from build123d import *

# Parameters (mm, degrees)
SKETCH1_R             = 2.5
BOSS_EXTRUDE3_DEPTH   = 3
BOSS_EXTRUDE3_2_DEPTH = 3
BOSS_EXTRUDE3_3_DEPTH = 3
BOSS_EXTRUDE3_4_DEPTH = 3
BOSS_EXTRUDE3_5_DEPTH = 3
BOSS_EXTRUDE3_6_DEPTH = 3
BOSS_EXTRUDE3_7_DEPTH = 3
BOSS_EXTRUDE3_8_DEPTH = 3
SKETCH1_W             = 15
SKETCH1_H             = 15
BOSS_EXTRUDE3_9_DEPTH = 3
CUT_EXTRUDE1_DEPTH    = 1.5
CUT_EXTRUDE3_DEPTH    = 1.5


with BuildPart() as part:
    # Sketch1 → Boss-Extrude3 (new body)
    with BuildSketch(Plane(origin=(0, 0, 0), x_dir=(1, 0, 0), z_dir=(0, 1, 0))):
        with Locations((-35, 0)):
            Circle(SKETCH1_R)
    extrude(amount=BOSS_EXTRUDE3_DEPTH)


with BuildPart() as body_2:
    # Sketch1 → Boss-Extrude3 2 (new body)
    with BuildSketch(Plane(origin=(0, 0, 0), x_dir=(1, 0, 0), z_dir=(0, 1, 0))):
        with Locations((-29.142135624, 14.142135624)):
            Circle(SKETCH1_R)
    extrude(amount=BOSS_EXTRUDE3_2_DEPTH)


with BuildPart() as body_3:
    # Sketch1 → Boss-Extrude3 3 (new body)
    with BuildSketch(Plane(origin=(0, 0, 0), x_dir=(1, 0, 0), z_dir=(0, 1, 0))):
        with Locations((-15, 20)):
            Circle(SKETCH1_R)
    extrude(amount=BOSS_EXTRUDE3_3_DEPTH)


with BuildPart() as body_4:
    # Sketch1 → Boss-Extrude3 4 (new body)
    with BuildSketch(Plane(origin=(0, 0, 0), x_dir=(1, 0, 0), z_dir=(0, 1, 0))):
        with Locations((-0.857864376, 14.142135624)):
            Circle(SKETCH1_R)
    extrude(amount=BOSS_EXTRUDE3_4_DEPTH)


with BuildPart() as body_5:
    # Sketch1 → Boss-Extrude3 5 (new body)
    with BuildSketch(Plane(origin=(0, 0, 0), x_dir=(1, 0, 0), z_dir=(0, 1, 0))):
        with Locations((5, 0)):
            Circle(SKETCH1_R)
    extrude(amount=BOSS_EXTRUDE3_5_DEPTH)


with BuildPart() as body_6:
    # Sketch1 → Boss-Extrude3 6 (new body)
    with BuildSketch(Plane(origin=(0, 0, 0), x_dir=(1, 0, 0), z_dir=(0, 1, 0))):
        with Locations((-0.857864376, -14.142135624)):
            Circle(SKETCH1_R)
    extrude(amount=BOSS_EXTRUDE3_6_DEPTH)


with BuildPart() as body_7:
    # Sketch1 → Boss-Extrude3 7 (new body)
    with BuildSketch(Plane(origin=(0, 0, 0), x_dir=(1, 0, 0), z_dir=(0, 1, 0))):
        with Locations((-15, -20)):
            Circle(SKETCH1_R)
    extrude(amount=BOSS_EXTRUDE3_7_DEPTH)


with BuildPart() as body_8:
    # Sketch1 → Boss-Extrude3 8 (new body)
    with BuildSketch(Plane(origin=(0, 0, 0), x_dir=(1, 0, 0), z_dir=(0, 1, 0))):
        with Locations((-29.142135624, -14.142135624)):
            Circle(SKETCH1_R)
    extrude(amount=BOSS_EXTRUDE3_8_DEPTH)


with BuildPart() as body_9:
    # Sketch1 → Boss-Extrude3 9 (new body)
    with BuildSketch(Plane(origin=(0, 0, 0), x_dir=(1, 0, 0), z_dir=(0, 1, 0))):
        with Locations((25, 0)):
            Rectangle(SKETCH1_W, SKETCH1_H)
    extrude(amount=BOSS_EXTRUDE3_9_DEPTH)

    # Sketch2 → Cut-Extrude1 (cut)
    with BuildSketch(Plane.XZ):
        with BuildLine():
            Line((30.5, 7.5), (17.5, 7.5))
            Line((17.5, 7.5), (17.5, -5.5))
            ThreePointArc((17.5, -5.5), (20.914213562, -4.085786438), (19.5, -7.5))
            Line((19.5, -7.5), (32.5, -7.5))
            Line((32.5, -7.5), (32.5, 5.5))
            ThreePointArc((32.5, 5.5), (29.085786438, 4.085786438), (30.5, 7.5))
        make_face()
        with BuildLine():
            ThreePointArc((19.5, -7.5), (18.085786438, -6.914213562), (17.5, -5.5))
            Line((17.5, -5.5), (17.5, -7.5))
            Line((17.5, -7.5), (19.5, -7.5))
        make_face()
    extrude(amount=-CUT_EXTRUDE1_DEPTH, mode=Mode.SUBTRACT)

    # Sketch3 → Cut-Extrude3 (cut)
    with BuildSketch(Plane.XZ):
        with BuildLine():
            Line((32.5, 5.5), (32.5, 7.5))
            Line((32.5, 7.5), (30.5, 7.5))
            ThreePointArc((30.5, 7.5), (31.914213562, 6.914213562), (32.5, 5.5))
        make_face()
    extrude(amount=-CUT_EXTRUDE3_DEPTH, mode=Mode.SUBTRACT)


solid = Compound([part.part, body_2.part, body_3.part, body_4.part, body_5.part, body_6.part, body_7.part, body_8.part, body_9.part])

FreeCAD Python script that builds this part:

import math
import FreeCAD as App
import Part
import Sketcher

V = App.Vector
Q = App.Units.Quantity

doc = App.newDocument("Part")
body = doc.addObject("PartDesign::Body", "Body")

# Sketch on XZ plane
sketch1 = doc.addObject("Sketcher::SketchObject", "Sketch")
body.addObject(sketch1)
sketch1.AttachmentSupport = (doc.XZ_Plane, [""])
sketch1.MapMode = "FlatFace"
sketch1.addGeometry(Part.Circle(V(-35, 0, 0), V(0, 0, 1), 2.5), False)
sketch1.addConstraint([
    Sketcher.Constraint("PointOnObject", 0, 3, -1),
    Sketcher.Constraint("Diameter", 0, Q("5 mm")),
    Sketcher.Constraint("DistanceX", 0, 3, -1, 1, Q("35 mm")),
])
pad1 = doc.addObject("PartDesign::Pad", "Pad")
body.addObject(pad1)
pad1.Profile = sketch1
pad1.Length = 3
pad1.Reversed = True
body2 = doc.addObject("PartDesign::Body", "Body001")

# Sketch on XZ plane
sketch2 = doc.addObject("Sketcher::SketchObject", "Sketch001")
body2.addObject(sketch2)
sketch2.AttachmentSupport = (doc.getObject("XZ_Plane001"), [""])
sketch2.MapMode = "FlatFace"
sketch2.addGeometry(Part.Circle(V(-29.1, -14.1, 0), V(0, 0, 1), 2.5), False)
sketch2.addConstraint([
    Sketcher.Constraint("Diameter", 0, Q("5 mm")),
    Sketcher.Constraint("DistanceX", 0, 3, -1, 1, Q("29.142136 mm")),
    Sketcher.Constraint("DistanceY", 0, 3, -1, 1, Q("14.142136 mm")),
])
pad2 = doc.addObject("PartDesign::Pad", "Pad001")
body2.addObject(pad2)
pad2.Profile = sketch2
pad2.Length = 3
pad2.Reversed = True
body3 = doc.addObject("PartDesign::Body", "Body002")

# Sketch on XZ plane
sketch3 = doc.addObject("Sketcher::SketchObject", "Sketch002")
body3.addObject(sketch3)
sketch3.AttachmentSupport = (doc.getObject("XZ_Plane002"), [""])
sketch3.MapMode = "FlatFace"
sketch3.addGeometry(Part.Circle(V(-15, -20, 0), V(0, 0, 1), 2.5), False)
sketch3.addConstraint([
    Sketcher.Constraint("Diameter", 0, Q("5 mm")),
    Sketcher.Constraint("DistanceX", 0, 3, -1, 1, Q("15 mm")),
    Sketcher.Constraint("DistanceY", 0, 3, -1, 1, Q("20 mm")),
])
pad3 = doc.addObject("PartDesign::Pad", "Pad002")
body3.addObject(pad3)
pad3.Profile = sketch3
pad3.Length = 3
pad3.Reversed = True
body4 = doc.addObject("PartDesign::Body", "Body003")

# Sketch on XZ plane
sketch4 = doc.addObject("Sketcher::SketchObject", "Sketch003")
body4.addObject(sketch4)
sketch4.AttachmentSupport = (doc.getObject("XZ_Plane003"), [""])
sketch4.MapMode = "FlatFace"
sketch4.addGeometry(Part.Circle(V(-0.9, -14.1, 0), V(0, 0, 1), 2.5), False)
sketch4.addConstraint([
    Sketcher.Constraint("Diameter", 0, Q("5 mm")),
    Sketcher.Constraint("DistanceX", 0, 3, -1, 1, Q("0.857864 mm")),
    Sketcher.Constraint("DistanceY", 0, 3, -1, 1, Q("14.142136 mm")),
])
pad4 = doc.addObject("PartDesign::Pad", "Pad003")
body4.addObject(pad4)
pad4.Profile = sketch4
pad4.Length = 3
pad4.Reversed = True
body5 = doc.addObject("PartDesign::Body", "Body004")

# Sketch on XZ plane
sketch5 = doc.addObject("Sketcher::SketchObject", "Sketch004")
body5.addObject(sketch5)
sketch5.AttachmentSupport = (doc.getObject("XZ_Plane004"), [""])
sketch5.MapMode = "FlatFace"
sketch5.addGeometry(Part.Circle(V(5, 0, 0), V(0, 0, 1), 2.5), False)
sketch5.addConstraint([
    Sketcher.Constraint("PointOnObject", 0, 3, -1),
    Sketcher.Constraint("Diameter", 0, Q("5 mm")),
    Sketcher.Constraint("DistanceX", -1, 1, 0, 3, Q("5 mm")),
])
pad5 = doc.addObject("PartDesign::Pad", "Pad004")
body5.addObject(pad5)
pad5.Profile = sketch5
pad5.Length = 3
pad5.Reversed = True
body6 = doc.addObject("PartDesign::Body", "Body005")

# Sketch on XZ plane
sketch6 = doc.addObject("Sketcher::SketchObject", "Sketch005")
body6.addObject(sketch6)
sketch6.AttachmentSupport = (doc.getObject("XZ_Plane005"), [""])
sketch6.MapMode = "FlatFace"
sketch6.addGeometry(Part.Circle(V(-0.9, 14.1, 0), V(0, 0, 1), 2.5), False)
sketch6.addConstraint([
    Sketcher.Constraint("Diameter", 0, Q("5 mm")),
    Sketcher.Constraint("DistanceX", 0, 3, -1, 1, Q("0.857864 mm")),
    Sketcher.Constraint("DistanceY", -1, 1, 0, 3, Q("14.142136 mm")),
])
pad6 = doc.addObject("PartDesign::Pad", "Pad005")
body6.addObject(pad6)
pad6.Profile = sketch6
pad6.Length = 3
pad6.Reversed = True
body7 = doc.addObject("PartDesign::Body", "Body006")

# Sketch on XZ plane
sketch7 = doc.addObject("Sketcher::SketchObject", "Sketch006")
body7.addObject(sketch7)
sketch7.AttachmentSupport = (doc.getObject("XZ_Plane006"), [""])
sketch7.MapMode = "FlatFace"
sketch7.addGeometry(Part.Circle(V(-15, 20, 0), V(0, 0, 1), 2.5), False)
sketch7.addConstraint([
    Sketcher.Constraint("Diameter", 0, Q("5 mm")),
    Sketcher.Constraint("DistanceX", 0, 3, -1, 1, Q("15 mm")),
    Sketcher.Constraint("DistanceY", -1, 1, 0, 3, Q("20 mm")),
])
pad7 = doc.addObject("PartDesign::Pad", "Pad006")
body7.addObject(pad7)
pad7.Profile = sketch7
pad7.Length = 3
pad7.Reversed = True
body8 = doc.addObject("PartDesign::Body", "Body007")

# Sketch on XZ plane
sketch8 = doc.addObject("Sketcher::SketchObject", "Sketch007")
body8.addObject(sketch8)
sketch8.AttachmentSupport = (doc.getObject("XZ_Plane007"), [""])
sketch8.MapMode = "FlatFace"
sketch8.addGeometry(Part.Circle(V(-29.1, 14.1, 0), V(0, 0, 1), 2.5), False)
sketch8.addConstraint([
    Sketcher.Constraint("Diameter", 0, Q("5 mm")),
    Sketcher.Constraint("DistanceX", 0, 3, -1, 1, Q("29.142136 mm")),
    Sketcher.Constraint("DistanceY", -1, 1, 0, 3, Q("14.142136 mm")),
])
pad8 = doc.addObject("PartDesign::Pad", "Pad007")
body8.addObject(pad8)
pad8.Profile = sketch8
pad8.Length = 3
pad8.Reversed = True
body9 = doc.addObject("PartDesign::Body", "Body008")

# Sketch on XZ plane
sketch9 = doc.addObject("Sketcher::SketchObject", "Sketch008")
body9.addObject(sketch9)
sketch9.AttachmentSupport = (doc.getObject("XZ_Plane008"), [""])
sketch9.MapMode = "FlatFace"
sketch9.addGeometry([
    Part.LineSegment(V(18, -8, 0), V(18, 8, 0)),
    Part.LineSegment(V(18, 8, 0), V(32, 8, 0)),
    Part.LineSegment(V(32, 8, 0), V(32, -8, 0)),
    Part.LineSegment(V(32, -8, 0), V(18, -8, 0)),
], False)
sketch9.addConstraint([
    Sketcher.Constraint("Coincident", 0, 2, 1, 1),
    Sketcher.Constraint("Coincident", 1, 2, 2, 1),
    Sketcher.Constraint("Coincident", 2, 2, 3, 1),
    Sketcher.Constraint("Coincident", 3, 2, 0, 1),
    Sketcher.Constraint("Vertical", 0),
    Sketcher.Constraint("Horizontal", 1),
    Sketcher.Constraint("Vertical", 2),
    Sketcher.Constraint("Horizontal", 3),
    Sketcher.Constraint("Equal", 3, 0),
    Sketcher.Constraint("DistanceX", 1, 1, 1, 2, Q("15 mm")),
    Sketcher.Constraint("DistanceX", -1, 1, 0, 2, Q("17.5 mm")),
    Sketcher.Constraint("DistanceY", -1, 1, 0, 2, Q("7.5 mm")),
])
pad9 = doc.addObject("PartDesign::Pad", "Pad008")
body9.addObject(pad9)
pad9.Profile = sketch9
pad9.Length = 3
pad9.Reversed = True

# Sketch on XZ plane
sketch10 = doc.addObject("Sketcher::SketchObject", "Sketch009")
body9.addObject(sketch10)
sketch10.AttachmentSupport = (doc.getObject("XZ_Plane008"), [""])
sketch10.MapMode = "FlatFace"
sketch10.addGeometry([
    Part.LineSegment(V(30.5, 7.5, 0), V(17.5, 7.5, 0)),  # 0
    Part.LineSegment(V(17.5, 7.5, 0), V(17.5, -5.5, 0)),  # 1
    Part.ArcOfCircle(Part.Circle(V(19.5, -5.5, 0), V(0, 0, 1), 2), math.radians(-90), math.radians(180)),  # 2
    Part.LineSegment(V(19.5, -7.5, 0), V(32.5, -7.5, 0)),  # 3
    Part.LineSegment(V(32.5, -7.5, 0), V(32.5, 5.5, 0)),  # 4
    Part.ArcOfCircle(Part.Circle(V(30.5, 5.5, 0), V(0, 0, 1), 2), math.radians(90), math.radians(360)),  # 5
    Part.ArcOfCircle(Part.Circle(V(19.5, -5.5, 0), V(0, 0, 1), 2), math.radians(-180), math.radians(-90)),  # 6
    Part.LineSegment(V(17.5, -5.5, 0), V(17.5, -7.5, 0)),  # 7
    Part.LineSegment(V(17.5, -7.5, 0), V(19.5, -7.5, 0)),  # 8
], False)
sketch10.addConstraint([
    Sketcher.Constraint("Coincident", 0, 2, 1, 1),
    Sketcher.Constraint("Tangent", 1, 2, 2, 2),
    Sketcher.Constraint("Tangent", 2, 1, 3, 1),
    Sketcher.Constraint("Coincident", 3, 2, 4, 1),
    Sketcher.Constraint("Tangent", 4, 2, 5, 2),
    Sketcher.Constraint("Tangent", 5, 1, 0, 1),
    Sketcher.Constraint("Tangent", 6, 1, 7, 1),
    Sketcher.Constraint("Coincident", 7, 2, 8, 1),
    Sketcher.Constraint("Tangent", 8, 2, 6, 2),
    Sketcher.Constraint("Horizontal", 0),
    Sketcher.Constraint("Vertical", 1),
    Sketcher.Constraint("Horizontal", 3),
    Sketcher.Constraint("Vertical", 4),
    Sketcher.Constraint("Vertical", 7),
    Sketcher.Constraint("Horizontal", 8),
    Sketcher.Constraint("Coincident", 6, 3, 2, 3),
    Sketcher.Constraint("Equal", 2, 5),
    Sketcher.Constraint("Equal", 5, 6),
    Sketcher.Constraint("Equal", 3, 1),
    Sketcher.Constraint("Radius", 2, Q("2 mm")),
    Sketcher.Constraint("DistanceX", 0, 2, 0, 1, Q("13 mm")),
    Sketcher.Constraint("DistanceX", -1, 1, 2, 3, Q("19.5 mm")),
    Sketcher.Constraint("DistanceY", 2, 3, -1, 1, Q("5.5 mm")),
])
pocket1 = doc.addObject("PartDesign::Pocket", "Pocket")
body9.addObject(pocket1)
pocket1.Profile = sketch10
pocket1.Length = 1.5

# Sketch on XZ plane
sketch11 = doc.addObject("Sketcher::SketchObject", "Sketch010")
body9.addObject(sketch11)
sketch11.AttachmentSupport = (doc.getObject("XZ_Plane008"), [""])
sketch11.MapMode = "FlatFace"
sketch11.addGeometry([
    Part.LineSegment(V(32.5, 5.5, 0), V(32.5, 7.5, 0)),
    Part.LineSegment(V(32.5, 7.5, 0), V(30.5, 7.5, 0)),
    Part.ArcOfCircle(Part.Circle(V(30.5, 5.5, 0), V(0, 0, 1), 2), math.radians(0), math.radians(90)),
], False)
sketch11.addConstraint([
    Sketcher.Constraint("Coincident", 0, 2, 1, 1),
    Sketcher.Constraint("Tangent", 1, 2, 2, 2),
    Sketcher.Constraint("Tangent", 2, 1, 0, 1),
    Sketcher.Constraint("Vertical", 0),
    Sketcher.Constraint("Horizontal", 1),
    Sketcher.Constraint("Radius", 2, Q("2 mm")),
    Sketcher.Constraint("DistanceX", -1, 1, 2, 3, Q("30.5 mm")),
    Sketcher.Constraint("DistanceY", -1, 1, 2, 3, Q("5.5 mm")),
])
pocket2 = doc.addObject("PartDesign::Pocket", "Pocket001")
body9.addObject(pocket2)
pocket2.Profile = sketch11
pocket2.Length = 1.5

doc.recompute()
